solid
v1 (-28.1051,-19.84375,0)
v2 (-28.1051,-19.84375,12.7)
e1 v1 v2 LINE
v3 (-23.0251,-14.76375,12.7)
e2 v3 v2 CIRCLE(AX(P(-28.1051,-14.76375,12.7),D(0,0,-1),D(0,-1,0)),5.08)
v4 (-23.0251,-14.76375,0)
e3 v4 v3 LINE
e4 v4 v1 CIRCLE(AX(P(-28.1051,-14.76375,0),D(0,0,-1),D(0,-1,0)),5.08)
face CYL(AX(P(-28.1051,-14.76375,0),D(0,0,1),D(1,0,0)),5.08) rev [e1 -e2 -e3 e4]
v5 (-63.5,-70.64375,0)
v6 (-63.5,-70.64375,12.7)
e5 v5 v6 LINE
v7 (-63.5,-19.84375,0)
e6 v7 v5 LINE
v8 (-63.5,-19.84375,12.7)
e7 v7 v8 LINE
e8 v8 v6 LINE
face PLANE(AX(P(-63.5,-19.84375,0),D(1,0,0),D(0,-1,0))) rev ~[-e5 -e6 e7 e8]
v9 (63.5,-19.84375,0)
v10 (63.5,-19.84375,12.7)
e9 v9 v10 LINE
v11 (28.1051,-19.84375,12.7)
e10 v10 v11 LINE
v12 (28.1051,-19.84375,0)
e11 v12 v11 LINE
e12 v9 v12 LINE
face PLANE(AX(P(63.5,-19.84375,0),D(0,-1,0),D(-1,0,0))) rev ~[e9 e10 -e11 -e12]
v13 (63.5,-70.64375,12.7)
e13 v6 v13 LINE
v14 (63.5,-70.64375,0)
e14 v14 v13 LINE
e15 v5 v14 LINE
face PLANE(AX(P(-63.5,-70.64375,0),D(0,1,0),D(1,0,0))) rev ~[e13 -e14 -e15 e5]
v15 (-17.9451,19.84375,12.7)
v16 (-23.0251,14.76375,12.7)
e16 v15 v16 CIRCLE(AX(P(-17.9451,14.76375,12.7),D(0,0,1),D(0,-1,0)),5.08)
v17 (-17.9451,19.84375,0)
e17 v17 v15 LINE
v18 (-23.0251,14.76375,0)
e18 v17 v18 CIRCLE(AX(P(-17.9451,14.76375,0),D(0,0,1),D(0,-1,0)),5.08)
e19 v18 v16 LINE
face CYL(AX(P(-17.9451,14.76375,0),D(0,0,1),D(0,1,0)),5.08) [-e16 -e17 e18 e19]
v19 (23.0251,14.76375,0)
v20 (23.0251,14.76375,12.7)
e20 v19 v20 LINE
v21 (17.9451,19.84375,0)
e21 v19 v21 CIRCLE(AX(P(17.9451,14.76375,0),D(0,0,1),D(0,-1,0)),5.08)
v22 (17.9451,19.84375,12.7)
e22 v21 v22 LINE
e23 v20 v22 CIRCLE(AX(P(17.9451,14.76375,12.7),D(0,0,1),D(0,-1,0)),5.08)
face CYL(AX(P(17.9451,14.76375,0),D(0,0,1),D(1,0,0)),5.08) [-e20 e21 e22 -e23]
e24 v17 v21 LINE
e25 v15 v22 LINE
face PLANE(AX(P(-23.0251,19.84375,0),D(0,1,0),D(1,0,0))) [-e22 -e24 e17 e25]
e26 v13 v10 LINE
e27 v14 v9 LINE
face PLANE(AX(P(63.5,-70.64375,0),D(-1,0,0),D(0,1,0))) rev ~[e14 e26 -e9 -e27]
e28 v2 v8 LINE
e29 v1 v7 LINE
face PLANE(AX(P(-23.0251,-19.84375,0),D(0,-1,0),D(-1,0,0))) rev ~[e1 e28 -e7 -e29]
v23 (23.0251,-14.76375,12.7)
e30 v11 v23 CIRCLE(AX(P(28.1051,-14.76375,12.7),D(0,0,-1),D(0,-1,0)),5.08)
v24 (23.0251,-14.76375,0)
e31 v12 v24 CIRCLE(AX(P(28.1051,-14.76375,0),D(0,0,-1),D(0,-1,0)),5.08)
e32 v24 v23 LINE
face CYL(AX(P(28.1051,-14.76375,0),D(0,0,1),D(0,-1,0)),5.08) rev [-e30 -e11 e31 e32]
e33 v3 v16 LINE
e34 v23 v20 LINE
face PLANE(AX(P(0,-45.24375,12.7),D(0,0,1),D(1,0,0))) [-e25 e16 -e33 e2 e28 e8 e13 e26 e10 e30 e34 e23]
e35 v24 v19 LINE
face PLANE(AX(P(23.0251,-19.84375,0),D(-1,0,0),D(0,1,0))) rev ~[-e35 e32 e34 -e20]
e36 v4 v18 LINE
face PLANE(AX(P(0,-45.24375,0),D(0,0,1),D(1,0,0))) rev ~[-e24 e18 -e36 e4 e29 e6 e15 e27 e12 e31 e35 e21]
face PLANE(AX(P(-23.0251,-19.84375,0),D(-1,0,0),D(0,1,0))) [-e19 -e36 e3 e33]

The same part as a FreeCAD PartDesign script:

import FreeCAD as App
import Part
import Sketcher

V = App.Vector
Q = App.Units.Quantity


def edges_at(feature, points):
    """Names of the edges that pass closest to the given points."""
    edges = feature.Shape.Edges
    near = lambda p: min(range(len(edges)), key=lambda i: edges[i].distToShape(Part.Vertex(*p))[0])
    return sorted({f"Edge{near(p) + 1}" for p in points})

doc = App.newDocument("Part")
params = doc.addObject("Spreadsheet::Sheet", "Params")
for row, (alias, value) in enumerate([
    ("sketch1_width", "5 in"),
    ("sketch1_height", "2 in"),
    ("sketch1_width2", "1.813 in"),
    ("sketch1_height2", "1.5625 in"),
    ("pad1_length", "0.5 in"),
    ("fillet_radius", "0.2 in"),
], start=1):
    params.set(f"A{row}", alias)
    params.set(f"B{row}", "=" + value)
    params.setAlias(f"B{row}", alias)

body = doc.addObject("PartDesign::Body", "Body")

# Sketch on XY plane
sketch1 = body.newObject("Sketcher::SketchObject", "Sketch")
sketch1.AttachmentSupport = (doc.getObject("XY_Plane"), [""])
sketch1.MapMode = "FlatFace"
sketch1.addGeometry([
    Part.LineSegment(V(64, -20, 0), V(23, -20, 0)),  # 0
    Part.LineSegment(V(23, -20, 0), V(23, 20, 0)),  # 1
    Part.LineSegment(V(23, 20, 0), V(-23, 20, 0)),  # 2
    Part.LineSegment(V(-23, 20, 0), V(-23, -20, 0)),  # 3
    Part.LineSegment(V(-23, -20, 0), V(-64, -20, 0)),  # 4
    Part.LineSegment(V(-64, -20, 0), V(-64, -71, 0)),  # 5
    Part.LineSegment(V(-64, -71, 0), V(64, -71, 0)),  # 6
    Part.LineSegment(V(64, -71, 0), V(64, -20, 0)),  # 7
], False)
sketch1.addConstraint([
    Sketcher.Constraint("Coincident", 0, 2, 1, 1),
    Sketcher.Constraint("Coincident", 1, 2, 2, 1),
    Sketcher.Constraint("Coincident", 2, 2, 3, 1),
    Sketcher.Constraint("Coincident", 3, 2, 4, 1),
    Sketcher.Constraint("Coincident", 4, 2, 5, 1),
    Sketcher.Constraint("Coincident", 5, 2, 6, 1),
    Sketcher.Constraint("Coincident", 6, 2, 7, 1),
    Sketcher.Constraint("Coincident", 7, 2, 0, 1),
    Sketcher.Constraint("Horizontal", 0),
    Sketcher.Constraint("Vertical", 1),
    Sketcher.Constraint("Horizontal", 2),
    Sketcher.Constraint("Vertical", 3),
    Sketcher.Constraint("Horizontal", 4),
    Sketcher.Constraint("Vertical", 5),
    Sketcher.Constraint("Horizontal", 6),
    Sketcher.Constraint("Vertical", 7),
    Sketcher.Constraint("Symmetric", 0, 2, 2, 2, -1, 1),
    Sketcher.Constraint("Symmetric", 4, 2, 7, 2, -2),
    Sketcher.Constraint("DistanceX", 6, 1, 6, 2, Q("5 in")),
    Sketcher.Constraint("DistanceY", 5, 2, 5, 1, Q("2 in")),
    Sketcher.Constraint("DistanceX", 2, 2, 2, 1, Q("1.813 in")),
    Sketcher.Constraint("DistanceY", 1, 1, 1, 2, Q("1.5625 in")),
])
sketch1.setExpression("Constraints[18]", "Params.sketch1_width")
sketch1.setExpression("Constraints[19]", "Params.sketch1_height")
sketch1.setExpression("Constraints[20]", "Params.sketch1_width2")
sketch1.setExpression("Constraints[21]", "Params.sketch1_height2")
pad1 = body.newObject("PartDesign::Pad", "Pad")
pad1.Profile = sketch1
pad1.setExpression("Length", "Params.pad1_length")
doc.recompute()

fillet = body.newObject("PartDesign::Fillet", "Fillet")
fillet.Base = (pad1, edges_at(pad1, [
    (-23.025, 19.844, 6.35),
    (23.025, 19.844, 6.35),
    (23.025, -19.844, 6.35),
    (-23.025, -19.844, 6.35),
]))
fillet.setExpression("Radius", "Params.fillet_radius")

doc.recompute()
